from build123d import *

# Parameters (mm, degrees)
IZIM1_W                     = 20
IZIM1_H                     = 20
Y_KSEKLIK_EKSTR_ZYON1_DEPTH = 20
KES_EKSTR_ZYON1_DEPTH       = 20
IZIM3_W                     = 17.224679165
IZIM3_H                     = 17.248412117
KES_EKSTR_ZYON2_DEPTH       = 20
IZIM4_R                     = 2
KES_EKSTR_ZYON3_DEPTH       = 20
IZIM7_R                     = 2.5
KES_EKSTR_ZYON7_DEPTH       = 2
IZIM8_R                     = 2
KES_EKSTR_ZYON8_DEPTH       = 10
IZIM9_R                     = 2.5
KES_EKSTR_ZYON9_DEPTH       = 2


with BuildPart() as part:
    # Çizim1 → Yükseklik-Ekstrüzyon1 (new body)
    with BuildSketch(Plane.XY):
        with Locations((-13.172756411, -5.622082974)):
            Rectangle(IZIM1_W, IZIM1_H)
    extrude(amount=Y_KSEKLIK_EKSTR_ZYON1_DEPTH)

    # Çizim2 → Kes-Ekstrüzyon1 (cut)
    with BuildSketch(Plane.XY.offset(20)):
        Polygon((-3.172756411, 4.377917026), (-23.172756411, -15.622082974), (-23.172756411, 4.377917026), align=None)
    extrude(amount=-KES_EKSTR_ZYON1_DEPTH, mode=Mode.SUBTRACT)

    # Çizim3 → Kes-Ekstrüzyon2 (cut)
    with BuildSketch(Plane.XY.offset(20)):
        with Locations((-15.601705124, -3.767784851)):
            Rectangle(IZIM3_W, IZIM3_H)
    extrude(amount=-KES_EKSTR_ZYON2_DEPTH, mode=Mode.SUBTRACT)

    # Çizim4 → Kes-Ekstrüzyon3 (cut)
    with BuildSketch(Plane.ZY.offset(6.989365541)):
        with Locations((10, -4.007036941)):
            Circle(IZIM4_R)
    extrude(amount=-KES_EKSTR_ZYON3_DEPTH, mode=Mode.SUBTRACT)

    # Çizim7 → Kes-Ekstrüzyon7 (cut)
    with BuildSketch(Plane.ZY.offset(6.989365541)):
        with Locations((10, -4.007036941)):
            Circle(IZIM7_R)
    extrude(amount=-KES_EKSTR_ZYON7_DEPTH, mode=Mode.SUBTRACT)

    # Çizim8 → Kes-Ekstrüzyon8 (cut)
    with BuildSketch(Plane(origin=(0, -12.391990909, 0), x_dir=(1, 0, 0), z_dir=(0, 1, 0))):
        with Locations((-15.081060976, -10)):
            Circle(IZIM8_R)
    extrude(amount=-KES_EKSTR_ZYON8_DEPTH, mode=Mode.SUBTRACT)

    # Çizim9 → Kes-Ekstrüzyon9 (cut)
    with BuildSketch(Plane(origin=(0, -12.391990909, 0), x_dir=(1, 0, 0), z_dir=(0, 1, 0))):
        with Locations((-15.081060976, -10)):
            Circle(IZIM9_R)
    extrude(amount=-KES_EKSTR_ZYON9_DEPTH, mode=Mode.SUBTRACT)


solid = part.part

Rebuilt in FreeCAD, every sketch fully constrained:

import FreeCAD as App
import Part
import Sketcher

V = App.Vector


def add_polygon(sketch, points):
    """Adds a closed chain of lines whose ends are joined by coincident constraints."""
    first, n = sketch.GeometryCount, len(points)
    for a, b in zip(points, points[1:] + points[:1]):
        sketch.addGeometry(Part.LineSegment(App.Vector(*a, 0), App.Vector(*b, 0)), False)
    for i in range(n):
        sketch.addConstraint(Sketcher.Constraint("Coincident", first + i, 2, first + (i + 1) % n, 1))

doc = App.newDocument("Part")
body = doc.addObject("PartDesign::Body", "Body")

sketch1 = body.newObject("Sketcher::SketchObject", "Sketch")
sketch1.AttachmentSupport = (doc.getObject("XY_Plane"), [""])
sketch1.MapMode = "FlatFace"
add_polygon(sketch1, [(-23.172756, 4.377917), (-23.172756, -15.622083), (-3.172756, -15.622083), (-3.172756, 4.377917)])
sketch1.addConstraint([
    Sketcher.Constraint("Vertical", 0),
    Sketcher.Constraint("Horizontal", 1),
    Sketcher.Constraint("Vertical", 2),
    Sketcher.Constraint("Horizontal", 3),
    Sketcher.Constraint("Equal", 3, 0),
    Sketcher.Constraint("DistanceX", 1, 1, 1, 2, 20.0),
    Sketcher.Constraint("DistanceX", 0, 2, -1, 1, 23.172756),
    Sketcher.Constraint("DistanceY", 0, 2, -1, 1, 15.622083),
])
pad1 = body.newObject("PartDesign::Pad", "Pad")
pad1.Profile = sketch1
pad1.Length = 20

sketch2 = body.newObject("Sketcher::SketchObject", "Sketch001")
sketch2.AttachmentSupport = (doc.getObject("XY_Plane"), [""])
sketch2.MapMode = "FlatFace"
sketch2.AttachmentOffset = App.Placement(V(0, 0, 20), App.Rotation())
add_polygon(sketch2, [(-23.172756, -15.622083), (-3.172756, 4.377917), (-23.172756, 4.377917)])
sketch2.addConstraint([
    Sketcher.Constraint("Horizontal", 1),
    Sketcher.Constraint("Vertical", 2),
    Sketcher.Constraint("Equal", 1, 2),
    Sketcher.Constraint("DistanceX", 1, 2, 1, 1, 20.0),
    Sketcher.Constraint("DistanceX", 0, 2, -1, 1, 3.172756),
    Sketcher.Constraint("DistanceY", -1, 1, 0, 2, 4.377917),
])
pocket1 = body.newObject("PartDesign::Pocket", "Pocket")
pocket1.Profile = sketch2
pocket1.Length = 20

sketch3 = body.newObject("Sketcher::SketchObject", "Sketch002")
sketch3.AttachmentSupport = (doc.getObject("XY_Plane"), [""])
sketch3.MapMode = "FlatFace"
sketch3.AttachmentOffset = App.Placement(V(0, 0, 20), App.Rotation())
add_polygon(sketch3, [(-24.214045, 4.856421), (-24.214045, -12.391991), (-6.989366, -12.391991), (-6.989366, 4.856421)])
sketch3.addConstraint([
    Sketcher.Constraint("Vertical", 0),
    Sketcher.Constraint("Horizontal", 1),
    Sketcher.Constraint("Vertical", 2),
    Sketcher.Constraint("Horizontal", 3),
    Sketcher.Constraint("DistanceX", 1, 1, 1, 2, 17.224679),
    Sketcher.Constraint("DistanceY", 0, 2, 0, 1, 17.248412),
    Sketcher.Constraint("DistanceY", 0, 2, -1, 1, 12.391991),
    Sketcher.Constraint("DistanceX", 0, 2, -1, 1, 24.214045),
])
pocket2 = body.newObject("PartDesign::Pocket", "Pocket001")
pocket2.Profile = sketch3
pocket2.Length = 20

sketch4 = body.newObject("Sketcher::SketchObject", "Sketch003")
sketch4.AttachmentSupport = (doc.getObject("YZ_Plane"), [""])
sketch4.MapMode = "FlatFace"
sketch4.AttachmentOffset = App.Placement(V(0, 0, -6.989366), App.Rotation())
sketch4.addGeometry(Part.Circle(V(-4.007037, 10, 0), V(0, 0, 1), 2), False)
sketch4.addConstraint([
    Sketcher.Constraint("Diameter", 0, 4.0),
    Sketcher.Constraint("DistanceY", -1, 1, 0, 3, 10.0),
    Sketcher.Constraint("DistanceX", 0, 3, -1, 1, 4.007037),
])
pocket3 = body.newObject("PartDesign::Pocket", "Pocket002")
pocket3.Profile = sketch4
pocket3.Length = 20
pocket3.Reversed = True

sketch5 = body.newObject("Sketcher::SketchObject", "Sketch004")
sketch5.AttachmentSupport = (doc.getObject("YZ_Plane"), [""])
sketch5.MapMode = "FlatFace"
sketch5.AttachmentOffset = App.Placement(V(0, 0, -6.989366), App.Rotation())
sketch5.addGeometry(Part.Circle(V(-4.007037, 10, 0), V(0, 0, 1), 2.5), False)
sketch5.addConstraint([
    Sketcher.Constraint("Diameter", 0, 5.0),
    Sketcher.Constraint("DistanceY", -1, 1, 0, 3, 10.0),
    Sketcher.Constraint("DistanceX", 0, 3, -1, 1, 4.007037),
])
pocket4 = body.newObject("PartDesign::Pocket", "Pocket003")
pocket4.Profile = sketch5
pocket4.Length = 2
pocket4.Reversed = True

sketch6 = body.newObject("Sketcher::SketchObject", "Sketch005")
sketch6.AttachmentSupport = (doc.getObject("XZ_Plane"), [""])
sketch6.MapMode = "FlatFace"
sketch6.AttachmentOffset = App.Placement(V(0, 0, 12.391991), App.Rotation())
sketch6.addGeometry(Part.Circle(V(-15.081061, 10, 0), V(0, 0, 1), 2), False)
sketch6.addConstraint([
    Sketcher.Constraint("Diameter", 0, 4.0),
    Sketcher.Constraint("DistanceY", -1, 1, 0, 3, 10.0),
    Sketcher.Constraint("DistanceX", 0, 3, -1, 1, 15.081061),
])
pocket5 = body.newObject("PartDesign::Pocket", "Pocket004")
pocket5.Profile = sketch6
pocket5.Length = 10
pocket5.Reversed = True

sketch7 = body.newObject("Sketcher::SketchObject", "Sketch006")
sketch7.AttachmentSupport = (doc.getObject("XZ_Plane"), [""])
sketch7.MapMode = "FlatFace"
sketch7.AttachmentOffset = App.Placement(V(0, 0, 12.391991), App.Rotation())
sketch7.addGeometry(Part.Circle(V(-15.081061, 10, 0), V(0, 0, 1), 2.5), False)
sketch7.addConstraint([
    Sketcher.Constraint("Diameter", 0, 5.0),
    Sketcher.Constraint("DistanceY", -1, 1, 0, 3, 10.0),
    Sketcher.Constraint("DistanceX", 0, 3, -1, 1, 15.081061),
])
pocket6 = body.newObject("PartDesign::Pocket", "Pocket005")
pocket6.Profile = sketch7
pocket6.Length = 2
pocket6.Reversed = True

doc.recompute()
